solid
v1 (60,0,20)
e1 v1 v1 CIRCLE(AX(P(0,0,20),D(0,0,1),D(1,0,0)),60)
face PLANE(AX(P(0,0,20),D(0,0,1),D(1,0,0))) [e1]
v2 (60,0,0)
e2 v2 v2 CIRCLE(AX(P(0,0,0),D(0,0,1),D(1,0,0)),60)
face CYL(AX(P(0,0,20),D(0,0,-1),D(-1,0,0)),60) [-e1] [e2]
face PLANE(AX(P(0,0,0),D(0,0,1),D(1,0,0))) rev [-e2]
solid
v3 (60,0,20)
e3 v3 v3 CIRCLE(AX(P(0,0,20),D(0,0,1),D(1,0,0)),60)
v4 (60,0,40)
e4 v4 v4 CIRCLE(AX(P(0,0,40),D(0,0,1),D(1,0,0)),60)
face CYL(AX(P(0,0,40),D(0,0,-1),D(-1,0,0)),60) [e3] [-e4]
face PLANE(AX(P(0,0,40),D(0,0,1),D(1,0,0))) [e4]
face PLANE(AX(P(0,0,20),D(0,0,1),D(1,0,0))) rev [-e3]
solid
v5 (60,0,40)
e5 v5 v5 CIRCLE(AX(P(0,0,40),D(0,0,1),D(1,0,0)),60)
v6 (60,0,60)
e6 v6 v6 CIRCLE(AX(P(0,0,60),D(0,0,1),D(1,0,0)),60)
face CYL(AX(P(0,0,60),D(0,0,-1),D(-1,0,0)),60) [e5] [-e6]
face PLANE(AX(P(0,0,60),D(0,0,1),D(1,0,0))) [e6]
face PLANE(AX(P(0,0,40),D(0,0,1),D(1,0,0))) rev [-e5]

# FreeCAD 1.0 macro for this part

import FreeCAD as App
import Part
import Sketcher
from FreeCAD import Vector
Q = App.Units.Quantity

doc = App.newDocument("Part")
body = doc.addObject("PartDesign::Body", "Body")

# Sketch on XY plane
sketch1 = body.newObject("Sketcher::SketchObject", "Sketch")
sketch1.AttachmentSupport = (doc.getObject("XY_Plane"), [""])
sketch1.MapMode = "FlatFace"
sketch1.addGeometry(Part.Circle(Vector(0, 0, 0), Vector(0, 0, 1), 60), False)
sketch1.addConstraint([
    Sketcher.Constraint("Coincident", 0, 3, -1, 1),
    Sketcher.Constraint("Diameter", 0, Q("120 mm")),
])
pad1 = body.newObject("PartDesign::Pad", "Pad")
pad1.Profile = sketch1
pad1.Length = 20
body2 = doc.addObject("PartDesign::Body", "Body001")

# Sketch on XY plane
sketch2 = body2.newObject("Sketcher::SketchObject", "Sketch001")
sketch2.AttachmentSupport = (doc.getObject("XY_Plane001"), [""])
sketch2.MapMode = "FlatFace"
sketch2.AttachmentOffset = App.Placement(Vector(0, 0, 20), App.Rotation())
sketch2.addGeometry(Part.Circle(Vector(0, 0, 0), Vector(0, 0, 1), 60), False)
sketch2.addConstraint([
    Sketcher.Constraint("Coincident", 0, 3, -1, 1),
    Sketcher.Constraint("Diameter", 0, Q("120 mm")),
])
pad2 = body2.newObject("PartDesign::Pad", "Pad001")
pad2.Profile = sketch2
pad2.Length = 20
body3 = doc.addObject("PartDesign::Body", "Body002")

# Sketch on XY plane
sketch3 = body3.newObject("Sketcher::SketchObject", "Sketch002")
sketch3.AttachmentSupport = (doc.getObject("XY_Plane002"), [""])
sketch3.MapMode = "FlatFace"
sketch3.AttachmentOffset = App.Placement(Vector(0, 0, 40), App.Rotation())
sketch3.addGeometry(Part.Circle(Vector(0, 0, 0), Vector(0, 0, 1), 60), False)
sketch3.addConstraint([
    Sketcher.Constraint("Coincident", 0, 3, -1, 1),
    Sketcher.Constraint("Diameter", 0, Q("120 mm")),
])
pad3 = body3.newObject("PartDesign::Pad", "Pad002")
pad3.Profile = sketch3
pad3.Length = 20

doc.recompute()
